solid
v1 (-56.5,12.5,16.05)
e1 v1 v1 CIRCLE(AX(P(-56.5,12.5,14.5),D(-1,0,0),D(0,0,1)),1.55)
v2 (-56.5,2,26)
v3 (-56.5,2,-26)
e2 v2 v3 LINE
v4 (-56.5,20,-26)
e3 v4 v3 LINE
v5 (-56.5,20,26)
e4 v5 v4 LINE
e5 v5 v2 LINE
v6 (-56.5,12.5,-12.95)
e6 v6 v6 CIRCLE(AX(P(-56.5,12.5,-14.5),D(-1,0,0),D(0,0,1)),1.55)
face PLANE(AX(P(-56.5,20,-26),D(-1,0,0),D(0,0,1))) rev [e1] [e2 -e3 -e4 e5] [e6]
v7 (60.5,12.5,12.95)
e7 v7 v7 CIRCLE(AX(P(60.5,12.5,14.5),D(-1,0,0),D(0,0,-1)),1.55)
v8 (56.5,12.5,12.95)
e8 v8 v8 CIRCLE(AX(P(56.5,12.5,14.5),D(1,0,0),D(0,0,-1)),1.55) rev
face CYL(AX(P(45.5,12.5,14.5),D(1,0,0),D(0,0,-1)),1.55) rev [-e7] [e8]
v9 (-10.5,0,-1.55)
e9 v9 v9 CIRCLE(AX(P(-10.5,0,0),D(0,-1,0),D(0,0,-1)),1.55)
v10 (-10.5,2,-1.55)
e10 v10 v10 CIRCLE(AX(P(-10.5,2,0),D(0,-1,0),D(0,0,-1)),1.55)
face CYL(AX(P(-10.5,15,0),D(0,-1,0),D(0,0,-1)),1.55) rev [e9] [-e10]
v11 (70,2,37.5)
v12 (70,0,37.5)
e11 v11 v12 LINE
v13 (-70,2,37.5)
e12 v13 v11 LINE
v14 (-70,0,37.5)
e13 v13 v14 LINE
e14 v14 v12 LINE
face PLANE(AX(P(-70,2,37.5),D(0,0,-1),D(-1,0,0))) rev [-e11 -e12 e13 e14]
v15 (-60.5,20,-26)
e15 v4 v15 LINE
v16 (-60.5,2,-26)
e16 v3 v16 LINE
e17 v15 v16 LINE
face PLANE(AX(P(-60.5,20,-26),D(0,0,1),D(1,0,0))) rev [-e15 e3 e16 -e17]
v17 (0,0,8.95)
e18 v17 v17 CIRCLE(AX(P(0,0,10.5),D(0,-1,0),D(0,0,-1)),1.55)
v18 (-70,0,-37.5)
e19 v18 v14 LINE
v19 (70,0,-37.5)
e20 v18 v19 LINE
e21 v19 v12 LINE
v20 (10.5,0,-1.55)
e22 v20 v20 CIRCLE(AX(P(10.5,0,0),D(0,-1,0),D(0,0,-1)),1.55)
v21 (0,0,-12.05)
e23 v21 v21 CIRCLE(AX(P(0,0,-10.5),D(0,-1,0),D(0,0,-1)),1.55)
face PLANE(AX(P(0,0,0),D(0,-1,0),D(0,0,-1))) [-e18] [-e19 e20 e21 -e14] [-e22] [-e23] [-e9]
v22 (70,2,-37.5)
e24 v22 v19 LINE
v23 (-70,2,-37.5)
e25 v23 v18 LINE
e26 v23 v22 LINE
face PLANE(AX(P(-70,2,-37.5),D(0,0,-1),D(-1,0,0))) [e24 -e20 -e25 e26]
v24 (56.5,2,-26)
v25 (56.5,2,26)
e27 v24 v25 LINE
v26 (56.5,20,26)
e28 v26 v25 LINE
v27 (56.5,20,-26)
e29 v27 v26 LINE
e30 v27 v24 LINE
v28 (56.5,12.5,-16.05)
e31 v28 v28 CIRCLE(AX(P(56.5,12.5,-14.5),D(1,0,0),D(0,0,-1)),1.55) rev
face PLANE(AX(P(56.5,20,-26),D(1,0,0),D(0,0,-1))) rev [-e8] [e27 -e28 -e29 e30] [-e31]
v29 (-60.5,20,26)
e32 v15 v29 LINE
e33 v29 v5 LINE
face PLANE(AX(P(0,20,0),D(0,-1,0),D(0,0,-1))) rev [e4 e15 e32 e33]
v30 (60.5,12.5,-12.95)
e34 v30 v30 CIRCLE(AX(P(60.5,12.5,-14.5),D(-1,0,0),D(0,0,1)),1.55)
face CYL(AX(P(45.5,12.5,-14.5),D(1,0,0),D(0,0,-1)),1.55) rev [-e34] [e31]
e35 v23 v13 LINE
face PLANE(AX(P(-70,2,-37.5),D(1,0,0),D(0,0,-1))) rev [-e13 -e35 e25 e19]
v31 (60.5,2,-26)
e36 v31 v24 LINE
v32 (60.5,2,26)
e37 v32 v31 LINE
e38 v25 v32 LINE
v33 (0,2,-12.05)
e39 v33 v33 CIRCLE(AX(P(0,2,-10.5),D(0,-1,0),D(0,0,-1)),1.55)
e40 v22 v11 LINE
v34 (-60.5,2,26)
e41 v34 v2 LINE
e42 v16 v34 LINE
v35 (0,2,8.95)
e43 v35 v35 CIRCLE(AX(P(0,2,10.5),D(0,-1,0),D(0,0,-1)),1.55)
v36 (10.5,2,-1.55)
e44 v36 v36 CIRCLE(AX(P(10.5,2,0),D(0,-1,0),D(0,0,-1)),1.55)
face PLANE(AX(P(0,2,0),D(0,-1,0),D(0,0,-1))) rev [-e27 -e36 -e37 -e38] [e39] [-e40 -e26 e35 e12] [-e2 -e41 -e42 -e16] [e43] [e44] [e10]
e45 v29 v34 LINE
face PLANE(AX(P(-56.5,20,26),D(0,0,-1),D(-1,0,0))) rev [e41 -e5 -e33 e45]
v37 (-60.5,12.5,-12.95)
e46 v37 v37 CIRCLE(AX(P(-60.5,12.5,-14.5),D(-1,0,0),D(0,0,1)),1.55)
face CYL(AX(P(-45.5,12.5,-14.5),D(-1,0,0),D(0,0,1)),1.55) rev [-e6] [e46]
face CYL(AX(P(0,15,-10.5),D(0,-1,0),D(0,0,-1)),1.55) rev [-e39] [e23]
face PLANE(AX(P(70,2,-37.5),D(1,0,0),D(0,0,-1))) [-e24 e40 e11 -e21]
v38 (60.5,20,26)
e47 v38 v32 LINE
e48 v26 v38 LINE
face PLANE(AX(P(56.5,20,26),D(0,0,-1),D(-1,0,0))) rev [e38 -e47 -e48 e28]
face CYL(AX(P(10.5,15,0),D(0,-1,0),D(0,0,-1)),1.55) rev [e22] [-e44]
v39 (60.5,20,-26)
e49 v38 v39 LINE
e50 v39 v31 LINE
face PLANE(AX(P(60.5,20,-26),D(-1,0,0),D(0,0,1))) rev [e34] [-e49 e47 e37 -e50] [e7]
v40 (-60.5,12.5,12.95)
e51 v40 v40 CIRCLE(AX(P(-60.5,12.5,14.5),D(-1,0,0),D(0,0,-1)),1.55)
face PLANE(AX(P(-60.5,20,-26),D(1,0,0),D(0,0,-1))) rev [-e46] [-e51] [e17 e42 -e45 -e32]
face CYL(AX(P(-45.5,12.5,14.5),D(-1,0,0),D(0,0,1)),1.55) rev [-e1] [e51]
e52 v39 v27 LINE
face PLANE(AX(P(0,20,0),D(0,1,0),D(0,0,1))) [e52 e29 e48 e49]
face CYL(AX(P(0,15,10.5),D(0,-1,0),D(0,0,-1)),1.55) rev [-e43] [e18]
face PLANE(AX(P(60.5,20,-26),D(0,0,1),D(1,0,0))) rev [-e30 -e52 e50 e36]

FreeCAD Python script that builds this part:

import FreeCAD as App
import Part
import Sketcher

V = App.Vector

doc = App.newDocument("Part")
params = doc.addObject("Spreadsheet::Sheet", "Params")
for row, (alias, value) in enumerate([
    ("sketch1_width", "140 mm"),
    ("sketch1_height", "75 mm"),
    ("pad1_length", "2 mm"),
    ("sketch2_width", "4 mm"),
    ("sketch2_height", "52 mm"),
    ("pad2_length", "18 mm"),
    ("sketch3_diameter", "3.1 mm"),
    ("pocket1_length", "15 mm"),
    ("sketch4_diameter", "3.1 mm"),
    ("pocket2_length", "15 mm"),
], start=1):
    params.set(f"A{row}", alias)
    params.set(f"B{row}", "=" + value)
    params.setAlias(f"B{row}", alias)

body = doc.addObject("PartDesign::Body", "Body")

sketch1 = body.newObject("Sketcher::SketchObject", "Sketch")
sketch1.AttachmentSupport = (doc.getObject("XZ_Plane"), [""])
sketch1.MapMode = "FlatFace"
sketch1.addGeometry([
    Part.LineSegment(V(-70, -38, 0), V(-70, 38, 0)),
    Part.LineSegment(V(-70, 38, 0), V(70, 38, 0)),
    Part.LineSegment(V(70, 38, 0), V(70, -38, 0)),
    Part.LineSegment(V(70, -38, 0), V(-70, -38, 0)),
], False)
sketch1.addConstraint([
    Sketcher.Constraint("Coincident", 0, 2, 1, 1),
    Sketcher.Constraint("Coincident", 1, 2, 2, 1),
    Sketcher.Constraint("Coincident", 2, 2, 3, 1),
    Sketcher.Constraint("Coincident", 3, 2, 0, 1),
    Sketcher.Constraint("Vertical", 0),
    Sketcher.Constraint("Horizontal", 1),
    Sketcher.Constraint("Vertical", 2),
    Sketcher.Constraint("Horizontal", 3),
    Sketcher.Constraint("Symmetric", 0, 2, 2, 2, -1, 1),
    Sketcher.Constraint("DistanceX", 1, 1, 1, 2, 140.0),
    Sketcher.Constraint("DistanceY", 0, 1, 0, 2, 75.0),
])
sketch1.setExpression("Constraints[9]", "Params.sketch1_width")
sketch1.setExpression("Constraints[10]", "Params.sketch1_height")
pad1 = body.newObject("PartDesign::Pad", "Pad")
pad1.Profile = sketch1
pad1.setExpression("Length", "Params.pad1_length")
pad1.Reversed = True

sketch2 = body.newObject("Sketcher::SketchObject", "Sketch001")
sketch2.AttachmentSupport = (doc.getObject("XZ_Plane"), [""])
sketch2.MapMode = "FlatFace"
sketch2.AttachmentOffset = App.Placement(V(0, 0, -2), App.Rotation())
sketch2.addGeometry([
    Part.LineSegment(V(56.5, -26, 0), V(56.5, 26, 0)),
    Part.LineSegment(V(56.5, 26, 0), V(60.5, 26, 0)),
    Part.LineSegment(V(60.5, 26, 0), V(60.5, -26, 0)),
    Part.LineSegment(V(60.5, -26, 0), V(56.5, -26, 0)),
    Part.LineSegment(V(-60.5, -26, 0), V(-60.5, 26, 0)),
    Part.LineSegment(V(-60.5, 26, 0), V(-56.5, 26, 0)),
    Part.LineSegment(V(-56.5, 26, 0), V(-56.5, -26, 0)),
    Part.LineSegment(V(-56.5, -26, 0), V(-60.5, -26, 0)),
], False)
sketch2.addConstraint([
    Sketcher.Constraint("Coincident", 0, 2, 1, 1),
    Sketcher.Constraint("Coincident", 1, 2, 2, 1),
    Sketcher.Constraint("Coincident", 2, 2, 3, 1),
    Sketcher.Constraint("Coincident", 3, 2, 0, 1),
    Sketcher.Constraint("Coincident", 4, 2, 5, 1),
    Sketcher.Constraint("Coincident", 5, 2, 6, 1),
    Sketcher.Constraint("Coincident", 6, 2, 7, 1),
    Sketcher.Constraint("Coincident", 7, 2, 4, 1),
    Sketcher.Constraint("Vertical", 0),
    Sketcher.Constraint("Horizontal", 1),
    Sketcher.Constraint("Vertical", 2),
    Sketcher.Constraint("Horizontal", 3),
    Sketcher.Constraint("Vertical", 4),
    Sketcher.Constraint("Horizontal", 5),
    Sketcher.Constraint("Vertical", 6),
    Sketcher.Constraint("Horizontal", 7),
    Sketcher.Constraint("Symmetric", 2, 2, 4, 2, -1, 1),
    Sketcher.Constraint("Symmetric", 0, 2, 6, 2, -1, 1),
    Sketcher.Constraint("Horizontal", 1, 2, 4, 2),
    Sketcher.Constraint("DistanceX", 1, 1, 1, 2, 4.0),
    Sketcher.Constraint("DistanceY", 0, 1, 0, 2, 52.0),
    Sketcher.Constraint("DistanceX", 4, 2, 0, 2, 117.0),
])
sketch2.setExpression("Constraints[19]", "Params.sketch2_width")
sketch2.setExpression("Constraints[20]", "Params.sketch2_height")
pad2 = body.newObject("PartDesign::Pad", "Pad001")
pad2.Profile = sketch2
pad2.setExpression("Length", "Params.pad2_length")
pad2.Reversed = True

sketch3 = body.newObject("Sketcher::SketchObject", "Sketch002")
sketch3.AttachmentSupport = (doc.getObject("YZ_Plane"), [""])
sketch3.MapMode = "FlatFace"
sketch3.AttachmentOffset = App.Placement(V(0, 0, -60.5), App.Rotation())
sketch3.addGeometry([
    Part.Circle(V(12.5, -14.5, 0), V(0, 0, 1), 1.6),
    Part.Circle(V(12.5, 14.5, 0), V(0, 0, 1), 1.6),
], False)
sketch3.addConstraint([
    Sketcher.Constraint("Equal", 0, 1),
    Sketcher.Constraint("Symmetric", 0, 3, 1, 3, -1),
    Sketcher.Constraint("Diameter", 0, 3.1),
    Sketcher.Constraint("DistanceY", 0, 3, 1, 3, 29.0),
    Sketcher.Constraint("DistanceX", -1, 1, 0, 3, 12.5),
])
sketch3.setExpression("Constraints[2]", "Params.sketch3_diameter")
pocket1 = body.newObject("PartDesign::Pocket", "Pocket")
pocket1.Profile = sketch3
pocket1.setExpression("Length", "Params.pocket1_length")
pocket1.Reversed = True
doc.recompute()

mirrored = body.newObject("PartDesign::Mirrored", "Mirrored")
mirrored.Originals = [pocket1]
mirrored.MirrorPlane = (doc.getObject("YZ_Plane"), [""])
body.Tip = mirrored

sketch4 = body.newObject("Sketcher::SketchObject", "Sketch003")
sketch4.AttachmentSupport = (doc.getObject("XZ_Plane"), [""])
sketch4.MapMode = "FlatFace"
sketch4.addGeometry([
    Part.Circle(V(0, 10.5, 0), V(0, 0, 1), 1.6),
    Part.Circle(V(10.5, 0, 0), V(0, 0, 1), 1.6),
    Part.Circle(V(-10.5, 0, 0), V(0, 0, 1), 1.6),
    Part.Circle(V(0, -10.5, 0), V(0, 0, 1), 1.6),
], False)
sketch4.addConstraint([
    Sketcher.Constraint("Equal", 0, 1),
    Sketcher.Constraint("Equal", 1, 2),
    Sketcher.Constraint("Equal", 2, 3),
    Sketcher.Constraint("Symmetric", 1, 3, 2, 3, -1, 1),
    Sketcher.Constraint("Symmetric", 0, 3, 3, 3, -1, 1),
    Sketcher.Constraint("PointOnObject", 0, 3, -2),
    Sketcher.Constraint("PointOnObject", 1, 3, -1),
    Sketcher.Constraint("Diameter", 0, 3.1),
    Sketcher.Constraint("DistanceX", 2, 3, 1, 3, 21.0),
    Sketcher.Constraint("DistanceY", 3, 3, 0, 3, 21.0),
])
sketch4.setExpression("Constraints[7]", "Params.sketch4_diameter")
pocket2 = body.newObject("PartDesign::Pocket", "Pocket001")
pocket2.Profile = sketch4
pocket2.setExpression("Length", "Params.pocket2_length")

doc.recompute()
